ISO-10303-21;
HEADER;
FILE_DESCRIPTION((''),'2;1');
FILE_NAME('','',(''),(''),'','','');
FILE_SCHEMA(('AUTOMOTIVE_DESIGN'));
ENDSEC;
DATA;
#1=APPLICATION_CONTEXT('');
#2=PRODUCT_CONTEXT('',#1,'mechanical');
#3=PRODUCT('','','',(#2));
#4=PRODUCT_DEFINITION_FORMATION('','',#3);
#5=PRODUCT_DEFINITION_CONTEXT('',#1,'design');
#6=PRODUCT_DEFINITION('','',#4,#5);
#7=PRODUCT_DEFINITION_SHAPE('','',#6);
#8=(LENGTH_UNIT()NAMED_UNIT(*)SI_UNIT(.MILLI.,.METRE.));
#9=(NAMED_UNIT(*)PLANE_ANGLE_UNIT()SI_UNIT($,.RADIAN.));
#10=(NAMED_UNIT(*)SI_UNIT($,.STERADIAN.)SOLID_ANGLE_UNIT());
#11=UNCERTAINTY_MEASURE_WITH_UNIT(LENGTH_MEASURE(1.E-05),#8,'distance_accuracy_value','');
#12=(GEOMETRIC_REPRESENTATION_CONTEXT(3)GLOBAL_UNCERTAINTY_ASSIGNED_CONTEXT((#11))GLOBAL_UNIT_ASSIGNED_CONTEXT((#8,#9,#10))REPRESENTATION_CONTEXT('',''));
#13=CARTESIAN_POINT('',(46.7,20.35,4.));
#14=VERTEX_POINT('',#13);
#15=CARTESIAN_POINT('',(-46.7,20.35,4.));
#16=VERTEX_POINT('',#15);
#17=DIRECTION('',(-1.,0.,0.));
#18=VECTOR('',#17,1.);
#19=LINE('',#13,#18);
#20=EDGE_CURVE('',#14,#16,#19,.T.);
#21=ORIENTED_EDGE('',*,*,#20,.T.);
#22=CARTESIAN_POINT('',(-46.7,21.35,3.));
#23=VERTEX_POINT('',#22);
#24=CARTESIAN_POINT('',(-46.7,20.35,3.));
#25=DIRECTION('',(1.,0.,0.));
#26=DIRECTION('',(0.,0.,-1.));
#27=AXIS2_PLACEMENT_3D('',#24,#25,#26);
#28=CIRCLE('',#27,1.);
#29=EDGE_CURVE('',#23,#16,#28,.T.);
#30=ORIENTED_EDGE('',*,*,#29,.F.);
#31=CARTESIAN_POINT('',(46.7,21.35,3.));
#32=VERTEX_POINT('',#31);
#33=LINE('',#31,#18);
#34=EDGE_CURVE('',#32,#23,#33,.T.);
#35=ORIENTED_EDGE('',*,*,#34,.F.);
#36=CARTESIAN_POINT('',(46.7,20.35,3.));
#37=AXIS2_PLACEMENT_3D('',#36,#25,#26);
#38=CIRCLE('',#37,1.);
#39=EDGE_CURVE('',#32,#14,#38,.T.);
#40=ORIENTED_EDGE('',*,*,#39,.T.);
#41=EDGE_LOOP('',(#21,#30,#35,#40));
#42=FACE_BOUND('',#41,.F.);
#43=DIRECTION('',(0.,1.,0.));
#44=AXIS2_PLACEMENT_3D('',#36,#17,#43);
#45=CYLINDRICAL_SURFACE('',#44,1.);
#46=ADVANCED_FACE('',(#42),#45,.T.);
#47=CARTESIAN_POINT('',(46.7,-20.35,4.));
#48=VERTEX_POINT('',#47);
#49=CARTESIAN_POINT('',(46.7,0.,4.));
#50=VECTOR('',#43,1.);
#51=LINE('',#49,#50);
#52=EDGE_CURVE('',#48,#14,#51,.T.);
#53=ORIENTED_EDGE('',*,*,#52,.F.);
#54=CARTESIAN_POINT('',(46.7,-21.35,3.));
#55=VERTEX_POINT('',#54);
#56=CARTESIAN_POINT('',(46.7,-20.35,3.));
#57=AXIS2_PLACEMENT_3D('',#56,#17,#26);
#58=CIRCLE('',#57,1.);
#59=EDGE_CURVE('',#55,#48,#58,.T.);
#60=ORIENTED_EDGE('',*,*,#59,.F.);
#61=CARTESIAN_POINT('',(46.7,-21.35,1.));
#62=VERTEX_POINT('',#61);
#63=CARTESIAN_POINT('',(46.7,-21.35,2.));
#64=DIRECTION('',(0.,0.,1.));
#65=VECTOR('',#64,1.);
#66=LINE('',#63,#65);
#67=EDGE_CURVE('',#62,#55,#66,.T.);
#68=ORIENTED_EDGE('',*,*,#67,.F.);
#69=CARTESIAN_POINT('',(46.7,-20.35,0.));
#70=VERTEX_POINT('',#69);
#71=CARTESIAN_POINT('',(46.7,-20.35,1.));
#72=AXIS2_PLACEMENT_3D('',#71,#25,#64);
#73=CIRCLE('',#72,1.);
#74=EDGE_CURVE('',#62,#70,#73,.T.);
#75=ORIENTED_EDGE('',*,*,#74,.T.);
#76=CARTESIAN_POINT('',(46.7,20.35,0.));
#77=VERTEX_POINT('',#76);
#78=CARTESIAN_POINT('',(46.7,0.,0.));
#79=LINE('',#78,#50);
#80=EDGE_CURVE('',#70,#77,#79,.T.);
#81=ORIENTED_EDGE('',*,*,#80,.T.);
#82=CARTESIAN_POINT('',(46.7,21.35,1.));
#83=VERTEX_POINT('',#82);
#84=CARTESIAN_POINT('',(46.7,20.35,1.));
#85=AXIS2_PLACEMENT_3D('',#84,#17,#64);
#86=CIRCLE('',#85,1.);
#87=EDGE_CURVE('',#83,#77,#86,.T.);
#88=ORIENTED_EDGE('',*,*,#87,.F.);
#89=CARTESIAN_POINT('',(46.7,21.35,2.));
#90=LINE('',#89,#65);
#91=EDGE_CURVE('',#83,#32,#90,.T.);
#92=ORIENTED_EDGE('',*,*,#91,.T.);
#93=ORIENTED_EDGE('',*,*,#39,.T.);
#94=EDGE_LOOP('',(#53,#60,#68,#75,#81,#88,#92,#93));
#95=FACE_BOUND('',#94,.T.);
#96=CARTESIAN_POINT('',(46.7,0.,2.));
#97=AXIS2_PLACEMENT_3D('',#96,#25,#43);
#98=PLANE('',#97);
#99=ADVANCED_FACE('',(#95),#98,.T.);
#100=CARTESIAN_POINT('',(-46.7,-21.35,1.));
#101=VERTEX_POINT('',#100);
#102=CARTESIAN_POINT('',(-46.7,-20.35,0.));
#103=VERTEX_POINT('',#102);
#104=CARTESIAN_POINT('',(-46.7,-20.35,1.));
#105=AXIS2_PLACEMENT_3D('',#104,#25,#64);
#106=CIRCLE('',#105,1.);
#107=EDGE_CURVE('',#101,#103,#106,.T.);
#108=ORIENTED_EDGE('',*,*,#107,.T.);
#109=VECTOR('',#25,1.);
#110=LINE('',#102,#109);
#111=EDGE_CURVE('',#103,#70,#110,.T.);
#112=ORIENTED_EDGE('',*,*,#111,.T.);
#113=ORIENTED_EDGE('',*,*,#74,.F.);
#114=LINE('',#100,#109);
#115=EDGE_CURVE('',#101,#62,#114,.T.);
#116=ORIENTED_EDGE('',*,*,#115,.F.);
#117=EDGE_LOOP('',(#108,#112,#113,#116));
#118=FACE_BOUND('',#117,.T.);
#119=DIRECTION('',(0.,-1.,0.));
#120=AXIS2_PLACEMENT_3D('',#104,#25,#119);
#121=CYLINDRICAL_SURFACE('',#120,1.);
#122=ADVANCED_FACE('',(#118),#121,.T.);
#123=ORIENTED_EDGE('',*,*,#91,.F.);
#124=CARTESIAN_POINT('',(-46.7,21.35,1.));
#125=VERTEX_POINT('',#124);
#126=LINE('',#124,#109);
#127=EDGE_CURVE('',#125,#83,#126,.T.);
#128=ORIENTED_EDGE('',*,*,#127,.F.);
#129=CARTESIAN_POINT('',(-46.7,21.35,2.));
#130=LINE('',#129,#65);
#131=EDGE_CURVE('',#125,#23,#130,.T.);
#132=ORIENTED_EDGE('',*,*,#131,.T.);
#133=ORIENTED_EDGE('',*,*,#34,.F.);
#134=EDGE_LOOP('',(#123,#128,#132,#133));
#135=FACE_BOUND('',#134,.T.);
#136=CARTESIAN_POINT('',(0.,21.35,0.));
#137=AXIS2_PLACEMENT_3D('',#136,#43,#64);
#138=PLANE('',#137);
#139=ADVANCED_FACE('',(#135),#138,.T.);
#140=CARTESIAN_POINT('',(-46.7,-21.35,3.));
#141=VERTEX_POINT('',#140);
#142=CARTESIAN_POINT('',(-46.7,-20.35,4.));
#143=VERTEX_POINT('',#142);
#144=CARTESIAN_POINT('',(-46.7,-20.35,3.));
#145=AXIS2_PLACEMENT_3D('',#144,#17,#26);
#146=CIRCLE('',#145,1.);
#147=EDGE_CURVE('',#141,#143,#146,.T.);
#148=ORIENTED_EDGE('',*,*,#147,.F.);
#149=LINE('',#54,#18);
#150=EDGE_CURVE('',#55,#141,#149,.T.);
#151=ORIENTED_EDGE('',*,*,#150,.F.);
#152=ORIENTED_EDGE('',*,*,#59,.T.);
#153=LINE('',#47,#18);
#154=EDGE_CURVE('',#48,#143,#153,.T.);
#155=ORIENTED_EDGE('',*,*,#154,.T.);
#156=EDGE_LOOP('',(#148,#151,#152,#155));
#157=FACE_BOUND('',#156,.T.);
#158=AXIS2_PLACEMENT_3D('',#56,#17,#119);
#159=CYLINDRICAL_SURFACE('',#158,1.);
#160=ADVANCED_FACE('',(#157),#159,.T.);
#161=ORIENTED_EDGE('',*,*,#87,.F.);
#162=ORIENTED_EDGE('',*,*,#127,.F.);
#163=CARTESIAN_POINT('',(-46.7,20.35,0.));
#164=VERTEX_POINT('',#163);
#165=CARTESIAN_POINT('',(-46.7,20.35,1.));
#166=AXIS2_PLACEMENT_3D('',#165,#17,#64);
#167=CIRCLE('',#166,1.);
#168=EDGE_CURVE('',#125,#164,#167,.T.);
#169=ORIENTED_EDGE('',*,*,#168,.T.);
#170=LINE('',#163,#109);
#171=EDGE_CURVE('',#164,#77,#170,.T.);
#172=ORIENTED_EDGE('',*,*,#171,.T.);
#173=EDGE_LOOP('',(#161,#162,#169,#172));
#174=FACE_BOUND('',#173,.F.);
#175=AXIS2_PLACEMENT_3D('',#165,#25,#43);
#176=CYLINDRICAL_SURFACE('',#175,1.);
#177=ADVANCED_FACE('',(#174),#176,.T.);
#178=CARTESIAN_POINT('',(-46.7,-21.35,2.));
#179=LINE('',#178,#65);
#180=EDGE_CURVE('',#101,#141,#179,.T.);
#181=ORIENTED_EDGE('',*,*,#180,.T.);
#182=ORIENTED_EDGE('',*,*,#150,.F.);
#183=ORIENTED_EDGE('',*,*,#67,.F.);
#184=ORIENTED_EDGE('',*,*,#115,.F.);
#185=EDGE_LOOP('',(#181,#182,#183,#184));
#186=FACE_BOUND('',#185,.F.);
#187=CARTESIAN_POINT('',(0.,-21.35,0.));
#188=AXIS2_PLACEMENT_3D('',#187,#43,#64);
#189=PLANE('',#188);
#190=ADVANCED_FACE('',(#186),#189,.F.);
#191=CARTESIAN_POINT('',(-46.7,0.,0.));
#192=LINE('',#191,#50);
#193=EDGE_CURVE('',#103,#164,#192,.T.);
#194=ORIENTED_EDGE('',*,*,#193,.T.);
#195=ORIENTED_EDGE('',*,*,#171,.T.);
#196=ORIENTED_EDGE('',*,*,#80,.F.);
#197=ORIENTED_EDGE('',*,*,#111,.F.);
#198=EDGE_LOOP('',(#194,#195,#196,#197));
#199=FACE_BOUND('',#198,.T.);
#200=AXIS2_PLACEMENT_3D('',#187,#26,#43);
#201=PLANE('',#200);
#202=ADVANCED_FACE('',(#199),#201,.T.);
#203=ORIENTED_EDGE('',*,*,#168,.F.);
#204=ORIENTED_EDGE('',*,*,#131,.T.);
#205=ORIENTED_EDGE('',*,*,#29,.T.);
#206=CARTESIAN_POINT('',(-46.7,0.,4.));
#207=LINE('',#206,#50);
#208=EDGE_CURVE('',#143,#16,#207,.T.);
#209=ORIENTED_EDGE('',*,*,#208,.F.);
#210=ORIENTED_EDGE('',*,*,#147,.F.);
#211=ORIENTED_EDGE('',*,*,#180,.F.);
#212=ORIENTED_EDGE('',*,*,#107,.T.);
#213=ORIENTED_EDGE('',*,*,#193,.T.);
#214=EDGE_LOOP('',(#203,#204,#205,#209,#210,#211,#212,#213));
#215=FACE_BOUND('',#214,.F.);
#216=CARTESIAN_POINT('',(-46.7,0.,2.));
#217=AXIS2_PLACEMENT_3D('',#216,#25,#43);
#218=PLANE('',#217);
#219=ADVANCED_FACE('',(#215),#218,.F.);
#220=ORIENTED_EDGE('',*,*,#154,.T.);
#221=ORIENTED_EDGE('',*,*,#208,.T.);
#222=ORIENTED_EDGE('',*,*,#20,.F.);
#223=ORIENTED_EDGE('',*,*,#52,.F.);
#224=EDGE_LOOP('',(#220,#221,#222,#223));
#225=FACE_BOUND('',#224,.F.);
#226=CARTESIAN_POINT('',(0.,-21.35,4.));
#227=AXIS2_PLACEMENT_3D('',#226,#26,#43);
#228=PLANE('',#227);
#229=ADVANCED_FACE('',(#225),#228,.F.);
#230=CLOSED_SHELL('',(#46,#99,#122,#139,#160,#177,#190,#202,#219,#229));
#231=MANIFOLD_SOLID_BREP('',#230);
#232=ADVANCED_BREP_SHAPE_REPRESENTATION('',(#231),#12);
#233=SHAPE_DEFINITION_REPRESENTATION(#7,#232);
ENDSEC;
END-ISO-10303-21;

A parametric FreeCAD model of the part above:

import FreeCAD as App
import Part
import Sketcher
Q = App.Units.Quantity


def edges_at(feature, points):
    """Names of the edges that pass closest to the given points."""
    edges = feature.Shape.Edges
    near = lambda p: min(range(len(edges)), key=lambda i: edges[i].distToShape(Part.Vertex(*p))[0])
    return sorted({f"Edge{near(p) + 1}" for p in points})


def add_polygon(sketch, points):
    """Adds a closed chain of lines whose ends are joined by coincident constraints."""
    first, n = sketch.GeometryCount, len(points)
    for a, b in zip(points, points[1:] + points[:1]):
        sketch.addGeometry(Part.LineSegment(App.Vector(*a, 0), App.Vector(*b, 0)), False)
    for i in range(n):
        sketch.addConstraint(Sketcher.Constraint("Coincident", first + i, 2, first + (i + 1) % n, 1))

doc = App.newDocument("Part")
body = doc.addObject("PartDesign::Body", "Body")

sketch1 = body.newObject("Sketcher::SketchObject", "Sketch")
sketch1.AttachmentSupport = (doc.getObject("YZ_Plane"), [""])
sketch1.MapMode = "FlatFace"
add_polygon(sketch1, [(-21.35, 4), (-21.35, 0), (21.35, 0), (21.35, 4)])
sketch1.addConstraint(Sketcher.Constraint("Vertical", 0))
sketch1.addConstraint(Sketcher.Constraint("Horizontal", 1))
sketch1.addConstraint(Sketcher.Constraint("Vertical", 2))
sketch1.addConstraint(Sketcher.Constraint("Horizontal", 3))
sketch1.addConstraint(Sketcher.Constraint("Symmetric", 0, 2, 1, 2, -1, 1))
sketch1.addConstraint(Sketcher.Constraint("DistanceY", 0, 2, 0, 1, Q("4 mm")))
sketch1.addConstraint(Sketcher.Constraint("DistanceX", 1, 1, 1, 2, Q("42.7 mm")))
pad1 = body.newObject("PartDesign::Pad", "Pad")
pad1.Profile = sketch1
pad1.Length = 93.4
pad1.Midplane = True
doc.recompute()

fillet = body.newObject("PartDesign::Fillet", "Fillet")
fillet.Base = (pad1, edges_at(pad1, [
    (0, -21.35, 4),
    (0, -21.35, 0),
    (0, 21.35, 0),
    (0, 21.35, 4),
]))
fillet.Radius = 1

doc.recompute()
